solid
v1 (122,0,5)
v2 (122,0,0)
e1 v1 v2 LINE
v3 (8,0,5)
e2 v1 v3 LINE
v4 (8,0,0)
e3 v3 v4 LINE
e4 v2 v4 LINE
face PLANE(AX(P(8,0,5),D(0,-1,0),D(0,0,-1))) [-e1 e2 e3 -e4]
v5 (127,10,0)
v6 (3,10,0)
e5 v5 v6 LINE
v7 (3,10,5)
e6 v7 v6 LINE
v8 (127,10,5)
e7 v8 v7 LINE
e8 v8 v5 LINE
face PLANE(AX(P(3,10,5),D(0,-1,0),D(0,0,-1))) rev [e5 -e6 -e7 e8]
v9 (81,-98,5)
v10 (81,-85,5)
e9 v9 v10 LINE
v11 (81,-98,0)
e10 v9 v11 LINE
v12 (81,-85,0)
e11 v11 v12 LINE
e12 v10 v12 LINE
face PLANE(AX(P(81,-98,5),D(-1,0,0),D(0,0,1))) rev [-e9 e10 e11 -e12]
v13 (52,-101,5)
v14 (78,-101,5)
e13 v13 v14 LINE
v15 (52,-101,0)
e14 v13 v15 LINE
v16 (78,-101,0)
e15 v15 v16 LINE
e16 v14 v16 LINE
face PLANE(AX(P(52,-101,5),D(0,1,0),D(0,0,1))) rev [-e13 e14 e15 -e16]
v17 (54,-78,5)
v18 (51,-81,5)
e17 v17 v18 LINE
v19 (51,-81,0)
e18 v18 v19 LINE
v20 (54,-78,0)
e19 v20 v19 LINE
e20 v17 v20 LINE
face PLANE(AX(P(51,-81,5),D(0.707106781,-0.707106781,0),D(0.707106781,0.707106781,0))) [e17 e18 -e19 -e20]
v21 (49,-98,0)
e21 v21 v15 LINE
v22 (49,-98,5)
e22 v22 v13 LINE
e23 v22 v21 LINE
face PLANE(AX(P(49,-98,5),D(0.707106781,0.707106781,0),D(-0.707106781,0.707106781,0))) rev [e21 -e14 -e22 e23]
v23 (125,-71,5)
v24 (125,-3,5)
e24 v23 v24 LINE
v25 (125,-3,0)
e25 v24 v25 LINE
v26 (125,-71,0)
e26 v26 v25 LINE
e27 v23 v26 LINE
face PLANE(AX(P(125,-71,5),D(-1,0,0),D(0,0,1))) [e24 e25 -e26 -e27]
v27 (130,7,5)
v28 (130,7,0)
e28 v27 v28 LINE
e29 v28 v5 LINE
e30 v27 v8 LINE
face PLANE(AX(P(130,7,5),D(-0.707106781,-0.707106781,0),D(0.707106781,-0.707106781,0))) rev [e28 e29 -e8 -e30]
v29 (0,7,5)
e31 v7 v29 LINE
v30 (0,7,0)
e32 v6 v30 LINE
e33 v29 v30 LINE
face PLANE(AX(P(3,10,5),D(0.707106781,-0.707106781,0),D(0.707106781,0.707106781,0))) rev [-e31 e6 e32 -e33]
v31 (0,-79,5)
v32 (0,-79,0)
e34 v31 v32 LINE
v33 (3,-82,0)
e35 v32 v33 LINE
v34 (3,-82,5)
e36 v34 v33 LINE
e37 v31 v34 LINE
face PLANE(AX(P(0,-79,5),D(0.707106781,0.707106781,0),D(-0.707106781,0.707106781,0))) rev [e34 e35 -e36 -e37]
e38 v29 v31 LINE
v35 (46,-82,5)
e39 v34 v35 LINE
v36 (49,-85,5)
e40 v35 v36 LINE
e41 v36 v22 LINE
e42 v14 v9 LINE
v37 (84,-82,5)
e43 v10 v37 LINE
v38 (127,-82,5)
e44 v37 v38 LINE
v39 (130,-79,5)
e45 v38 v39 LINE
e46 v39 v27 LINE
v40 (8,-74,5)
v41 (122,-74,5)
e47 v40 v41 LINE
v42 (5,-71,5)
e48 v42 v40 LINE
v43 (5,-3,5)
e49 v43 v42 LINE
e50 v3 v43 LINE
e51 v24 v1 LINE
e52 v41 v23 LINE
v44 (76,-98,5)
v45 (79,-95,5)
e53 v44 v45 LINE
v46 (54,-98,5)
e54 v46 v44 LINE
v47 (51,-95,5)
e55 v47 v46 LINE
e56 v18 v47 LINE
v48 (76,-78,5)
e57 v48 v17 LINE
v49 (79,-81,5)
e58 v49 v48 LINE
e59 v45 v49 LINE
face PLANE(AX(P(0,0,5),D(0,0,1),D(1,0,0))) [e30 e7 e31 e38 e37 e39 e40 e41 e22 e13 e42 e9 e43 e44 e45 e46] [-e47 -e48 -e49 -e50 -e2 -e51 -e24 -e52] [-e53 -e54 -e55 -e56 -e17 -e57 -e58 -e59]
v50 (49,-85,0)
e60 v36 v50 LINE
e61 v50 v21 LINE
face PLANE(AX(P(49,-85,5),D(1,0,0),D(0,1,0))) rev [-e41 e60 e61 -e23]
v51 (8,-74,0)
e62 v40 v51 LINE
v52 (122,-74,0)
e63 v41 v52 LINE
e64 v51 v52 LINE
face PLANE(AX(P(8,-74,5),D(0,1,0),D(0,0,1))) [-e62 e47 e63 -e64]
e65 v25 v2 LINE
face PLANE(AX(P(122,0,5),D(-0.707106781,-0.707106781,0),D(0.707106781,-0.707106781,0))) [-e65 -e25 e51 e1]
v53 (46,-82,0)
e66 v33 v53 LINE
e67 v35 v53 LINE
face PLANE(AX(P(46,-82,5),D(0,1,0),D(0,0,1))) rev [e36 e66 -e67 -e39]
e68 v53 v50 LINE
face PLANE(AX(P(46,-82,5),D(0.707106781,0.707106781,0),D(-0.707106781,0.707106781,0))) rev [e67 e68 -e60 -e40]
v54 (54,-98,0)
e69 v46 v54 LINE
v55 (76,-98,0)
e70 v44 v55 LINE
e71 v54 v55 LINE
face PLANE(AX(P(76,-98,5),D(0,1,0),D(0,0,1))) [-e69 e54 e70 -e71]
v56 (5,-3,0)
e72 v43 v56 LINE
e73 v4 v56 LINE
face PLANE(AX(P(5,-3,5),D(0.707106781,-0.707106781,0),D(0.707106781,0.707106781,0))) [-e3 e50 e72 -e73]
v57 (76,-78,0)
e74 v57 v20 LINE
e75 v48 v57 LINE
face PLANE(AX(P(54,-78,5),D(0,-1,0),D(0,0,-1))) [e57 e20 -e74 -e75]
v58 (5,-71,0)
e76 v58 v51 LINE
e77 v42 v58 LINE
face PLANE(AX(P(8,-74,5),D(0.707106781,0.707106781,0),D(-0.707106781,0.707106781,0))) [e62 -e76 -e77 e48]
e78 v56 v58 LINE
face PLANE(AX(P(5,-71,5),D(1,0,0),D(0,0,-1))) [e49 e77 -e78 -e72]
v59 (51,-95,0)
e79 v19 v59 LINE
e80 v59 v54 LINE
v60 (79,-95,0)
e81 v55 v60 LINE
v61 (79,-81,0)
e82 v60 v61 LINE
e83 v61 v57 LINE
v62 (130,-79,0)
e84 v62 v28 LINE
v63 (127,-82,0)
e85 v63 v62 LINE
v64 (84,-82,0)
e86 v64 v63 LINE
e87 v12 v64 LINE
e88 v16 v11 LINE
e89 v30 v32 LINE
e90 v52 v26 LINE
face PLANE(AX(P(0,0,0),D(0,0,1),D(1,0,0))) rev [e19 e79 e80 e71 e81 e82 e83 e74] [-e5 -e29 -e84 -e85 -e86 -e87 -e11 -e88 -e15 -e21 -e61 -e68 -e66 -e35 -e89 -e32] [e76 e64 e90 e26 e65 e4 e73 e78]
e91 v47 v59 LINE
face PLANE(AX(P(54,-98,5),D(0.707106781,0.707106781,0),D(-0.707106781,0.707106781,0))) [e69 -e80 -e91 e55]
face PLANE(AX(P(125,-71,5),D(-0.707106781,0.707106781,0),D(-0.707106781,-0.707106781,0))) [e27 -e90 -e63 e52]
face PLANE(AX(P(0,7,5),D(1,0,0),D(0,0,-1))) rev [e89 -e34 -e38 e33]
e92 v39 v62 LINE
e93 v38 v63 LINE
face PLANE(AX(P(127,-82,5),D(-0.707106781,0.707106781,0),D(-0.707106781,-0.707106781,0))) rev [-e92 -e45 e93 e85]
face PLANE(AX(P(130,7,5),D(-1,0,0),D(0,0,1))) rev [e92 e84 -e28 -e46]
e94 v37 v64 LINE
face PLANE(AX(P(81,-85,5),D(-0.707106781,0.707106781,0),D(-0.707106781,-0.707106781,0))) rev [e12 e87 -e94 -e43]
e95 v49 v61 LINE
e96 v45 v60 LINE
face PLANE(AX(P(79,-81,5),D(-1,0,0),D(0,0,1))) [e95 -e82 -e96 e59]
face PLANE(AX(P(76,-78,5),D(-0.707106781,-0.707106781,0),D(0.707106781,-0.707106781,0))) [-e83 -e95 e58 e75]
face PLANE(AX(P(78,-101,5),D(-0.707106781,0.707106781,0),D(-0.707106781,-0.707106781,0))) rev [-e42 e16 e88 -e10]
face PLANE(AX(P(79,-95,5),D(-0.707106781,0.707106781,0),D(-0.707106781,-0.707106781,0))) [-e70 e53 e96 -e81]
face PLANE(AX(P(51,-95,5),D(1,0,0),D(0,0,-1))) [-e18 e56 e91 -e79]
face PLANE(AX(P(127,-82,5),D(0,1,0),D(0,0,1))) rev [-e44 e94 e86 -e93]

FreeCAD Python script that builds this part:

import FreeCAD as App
import Part
import Sketcher
from FreeCAD import Vector

doc = App.newDocument("Part")
params = doc.addObject("Spreadsheet::Sheet", "Params")
for row, (alias, value) in enumerate([
    ("sketch1_width", "124 mm"),
    ("sketch1_width2", "43 mm"),
    ("sketch1_width3", "26 mm"),
    ("sketch1_width4", "22 mm"),
    ("sketch1_width5", "114 mm"),
    ("pad1_length", "5 mm"),
], start=1):
    params.set(f"A{row}", alias)
    params.set(f"B{row}", "=" + value)
    params.setAlias(f"B{row}", alias)

body = doc.addObject("PartDesign::Body", "Body")

# Sketch on XY plane
sketch1 = body.newObject("Sketcher::SketchObject", "Sketch")
sketch1.AttachmentSupport = (doc.getObject("XY_Plane"), [""])
sketch1.MapMode = "FlatFace"
sketch1.addGeometry([
    Part.LineSegment(Vector(127, 10, 0), Vector(3, 10, 0)),  # 0
    Part.LineSegment(Vector(3, 10, 0), Vector(0, 7, 0)),  # 1
    Part.LineSegment(Vector(0, 7, 0), Vector(0, -79, 0)),  # 2
    Part.LineSegment(Vector(0, -79, 0), Vector(3, -82, 0)),  # 3
    Part.LineSegment(Vector(3, -82, 0), Vector(46, -82, 0)),  # 4
    Part.LineSegment(Vector(46, -82, 0), Vector(49, -85, 0)),  # 5
    Part.LineSegment(Vector(49, -85, 0), Vector(49, -98, 0)),  # 6
    Part.LineSegment(Vector(49, -98, 0), Vector(52, -101, 0)),  # 7
    Part.LineSegment(Vector(52, -101, 0), Vector(78, -101, 0)),  # 8
    Part.LineSegment(Vector(78, -101, 0), Vector(81, -98, 0)),  # 9
    Part.LineSegment(Vector(81, -98, 0), Vector(81, -85, 0)),  # 10
    Part.LineSegment(Vector(81, -85, 0), Vector(84, -82, 0)),  # 11
    Part.LineSegment(Vector(84, -82, 0), Vector(127, -82, 0)),  # 12
    Part.LineSegment(Vector(127, -82, 0), Vector(130, -79, 0)),  # 13
    Part.LineSegment(Vector(130, -79, 0), Vector(130, 7, 0)),  # 14
    Part.LineSegment(Vector(130, 7, 0), Vector(127, 10, 0)),  # 15
    Part.LineSegment(Vector(54, -78, 0), Vector(76, -78, 0)),  # 16
    Part.LineSegment(Vector(76, -78, 0), Vector(79, -81, 0)),  # 17
    Part.LineSegment(Vector(79, -81, 0), Vector(79, -95, 0)),  # 18
    Part.LineSegment(Vector(79, -95, 0), Vector(76, -98, 0)),  # 19
    Part.LineSegment(Vector(76, -98, 0), Vector(54, -98, 0)),  # 20
    Part.LineSegment(Vector(54, -98, 0), Vector(51, -95, 0)),  # 21
    Part.LineSegment(Vector(51, -95, 0), Vector(51, -81, 0)),  # 22
    Part.LineSegment(Vector(51, -81, 0), Vector(54, -78, 0)),  # 23
    Part.LineSegment(Vector(125, -71, 0), Vector(122, -74, 0)),  # 24
    Part.LineSegment(Vector(122, -74, 0), Vector(8, -74, 0)),  # 25
    Part.LineSegment(Vector(8, -74, 0), Vector(5, -71, 0)),  # 26
    Part.LineSegment(Vector(5, -71, 0), Vector(5, -3, 0)),  # 27
    Part.LineSegment(Vector(5, -3, 0), Vector(8, 0, 0)),  # 28
    Part.LineSegment(Vector(8, 0, 0), Vector(122, 0, 0)),  # 29
    Part.LineSegment(Vector(122, 0, 0), Vector(125, -3, 0)),  # 30
    Part.LineSegment(Vector(125, -3, 0), Vector(125, -71, 0)),  # 31
], False)
sketch1.addConstraint([
    Sketcher.Constraint("Coincident", 0, 2, 1, 1),
    Sketcher.Constraint("Coincident", 1, 2, 2, 1),
    Sketcher.Constraint("Coincident", 2, 2, 3, 1),
    Sketcher.Constraint("Coincident", 3, 2, 4, 1),
    Sketcher.Constraint("Coincident", 4, 2, 5, 1),
    Sketcher.Constraint("Coincident", 5, 2, 6, 1),
    Sketcher.Constraint("Coincident", 6, 2, 7, 1),
    Sketcher.Constraint("Coincident", 7, 2, 8, 1),
    Sketcher.Constraint("Coincident", 8, 2, 9, 1),
    Sketcher.Constraint("Coincident", 9, 2, 10, 1),
    Sketcher.Constraint("Coincident", 10, 2, 11, 1),
    Sketcher.Constraint("Coincident", 11, 2, 12, 1),
    Sketcher.Constraint("Coincident", 12, 2, 13, 1),
    Sketcher.Constraint("Coincident", 13, 2, 14, 1),
    Sketcher.Constraint("Coincident", 14, 2, 15, 1),
    Sketcher.Constraint("Coincident", 15, 2, 0, 1),
    Sketcher.Constraint("Coincident", 16, 2, 17, 1),
    Sketcher.Constraint("Coincident", 17, 2, 18, 1),
    Sketcher.Constraint("Coincident", 18, 2, 19, 1),
    Sketcher.Constraint("Coincident", 19, 2, 20, 1),
    Sketcher.Constraint("Coincident", 20, 2, 21, 1),
    Sketcher.Constraint("Coincident", 21, 2, 22, 1),
    Sketcher.Constraint("Coincident", 22, 2, 23, 1),
    Sketcher.Constraint("Coincident", 23, 2, 16, 1),
    Sketcher.Constraint("Coincident", 24, 2, 25, 1),
    Sketcher.Constraint("Coincident", 25, 2, 26, 1),
    Sketcher.Constraint("Coincident", 26, 2, 27, 1),
    Sketcher.Constraint("Coincident", 27, 2, 28, 1),
    Sketcher.Constraint("Coincident", 28, 2, 29, 1),
    Sketcher.Constraint("Coincident", 29, 2, 30, 1),
    Sketcher.Constraint("Coincident", 30, 2, 31, 1),
    Sketcher.Constraint("Coincident", 31, 2, 24, 1),
    Sketcher.Constraint("Horizontal", 0),
    Sketcher.Constraint("Vertical", 2),
    Sketcher.Constraint("Horizontal", 4),
    Sketcher.Constraint("Vertical", 6),
    Sketcher.Constraint("Horizontal", 8),
    Sketcher.Constraint("Vertical", 10),
    Sketcher.Constraint("Horizontal", 12),
    Sketcher.Constraint("Vertical", 14),
    Sketcher.Constraint("Horizontal", 16),
    Sketcher.Constraint("Vertical", 18),
    Sketcher.Constraint("Horizontal", 20),
    Sketcher.Constraint("Vertical", 22),
    Sketcher.Constraint("Horizontal", 25),
    Sketcher.Constraint("Vertical", 27),
    Sketcher.Constraint("Horizontal", 29),
    Sketcher.Constraint("Vertical", 31),
    Sketcher.Constraint("PointOnObject", 1, 2, -2),
    Sketcher.Constraint("PointOnObject", 28, 2, -1),
    Sketcher.Constraint("Perpendicular", 1, 3),
    Sketcher.Constraint("Parallel", 3, 5),
    Sketcher.Constraint("Parallel", 5, 7),
    Sketcher.Constraint("Perpendicular", 7, 9),
    Sketcher.Constraint("Parallel", 9, 11),
    Sketcher.Constraint("Parallel", 11, 13),
    Sketcher.Constraint("Perpendicular", 13, 15),
    Sketcher.Constraint("Parallel", 15, 17),
    Sketcher.Constraint("Perpendicular", 17, 19),
    Sketcher.Constraint("Perpendicular", 19, 21),
    Sketcher.Constraint("Perpendicular", 21, 23),
    Sketcher.Constraint("Parallel", 23, 24),
    Sketcher.Constraint("Perpendicular", 24, 26),
    Sketcher.Constraint("Perpendicular", 26, 28),
    Sketcher.Constraint("Perpendicular", 28, 30),
    Sketcher.Constraint("Horizontal", 6, 2, 9, 2),
    Sketcher.Constraint("Horizontal", 5, 2, 10, 2),
    Sketcher.Constraint("Horizontal", 4, 2, 11, 2),
    Sketcher.Constraint("Horizontal", 2, 2, 13, 2),
    Sketcher.Constraint("Horizontal", 1, 2, 14, 2),
    Sketcher.Constraint("Horizontal", 9, 2, 19, 2),
    Sketcher.Constraint("Horizontal", 18, 2, 21, 2),
    Sketcher.Constraint("Horizontal", 17, 2, 22, 2),
    Sketcher.Constraint("Horizontal", 27, 2, 30, 2),
    Sketcher.Constraint("Horizontal", 26, 2, 31, 2),
    Sketcher.Constraint("Vertical", 0, 2, 3, 2),
    Sketcher.Constraint("Vertical", 12, 2, 15, 2),
    Sketcher.Constraint("Vertical", 16, 2, 19, 2),
    Sketcher.Constraint("Vertical", 25, 2, 28, 2),
    Sketcher.Constraint("Equal", 4, 12),
    Sketcher.Constraint("Equal", 3, 5),
    Sketcher.Constraint("Equal", 5, 7),
    Sketcher.Constraint("Equal", 15, 17),
    Sketcher.Constraint("Equal", 23, 24),
    Sketcher.Constraint("DistanceX", 0, 2, 0, 1, 124.0),
    Sketcher.Constraint("DistanceX", 4, 1, 4, 2, 43.0),
    Sketcher.Constraint("DistanceX", 8, 1, 8, 2, 26.0),
    Sketcher.Constraint("DistanceX", 16, 1, 16, 2, 22.0),
    Sketcher.Constraint("DistanceX", 25, 2, 25, 1, 114.0),
    Sketcher.Constraint("DistanceY", 2, 2, 2, 1, 86.0),
    Sketcher.Constraint("DistanceY", 6, 2, 6, 1, 13.0),
    Sketcher.Constraint("DistanceY", 18, 2, 18, 1, 14.0),
    Sketcher.Constraint("DistanceY", 27, 1, 27, 2, 68.0),
    Sketcher.Constraint("DistanceY", -1, 1, 0, 2, 10.0),
    Sketcher.Constraint("DistanceX", -1, 1, 16, 2, 76.0),
    Sketcher.Constraint("DistanceX", -1, 1, 24, 2, 122.0),
])
sketch1.setExpression("Constraints[84]", "Params.sketch1_width")
sketch1.setExpression("Constraints[85]", "Params.sketch1_width2")
sketch1.setExpression("Constraints[86]", "Params.sketch1_width3")
sketch1.setExpression("Constraints[87]", "Params.sketch1_width4")
sketch1.setExpression("Constraints[88]", "Params.sketch1_width5")
pad1 = body.newObject("PartDesign::Pad", "Pad")
pad1.Profile = sketch1
pad1.setExpression("Length", "Params.pad1_length")

doc.recompute()
